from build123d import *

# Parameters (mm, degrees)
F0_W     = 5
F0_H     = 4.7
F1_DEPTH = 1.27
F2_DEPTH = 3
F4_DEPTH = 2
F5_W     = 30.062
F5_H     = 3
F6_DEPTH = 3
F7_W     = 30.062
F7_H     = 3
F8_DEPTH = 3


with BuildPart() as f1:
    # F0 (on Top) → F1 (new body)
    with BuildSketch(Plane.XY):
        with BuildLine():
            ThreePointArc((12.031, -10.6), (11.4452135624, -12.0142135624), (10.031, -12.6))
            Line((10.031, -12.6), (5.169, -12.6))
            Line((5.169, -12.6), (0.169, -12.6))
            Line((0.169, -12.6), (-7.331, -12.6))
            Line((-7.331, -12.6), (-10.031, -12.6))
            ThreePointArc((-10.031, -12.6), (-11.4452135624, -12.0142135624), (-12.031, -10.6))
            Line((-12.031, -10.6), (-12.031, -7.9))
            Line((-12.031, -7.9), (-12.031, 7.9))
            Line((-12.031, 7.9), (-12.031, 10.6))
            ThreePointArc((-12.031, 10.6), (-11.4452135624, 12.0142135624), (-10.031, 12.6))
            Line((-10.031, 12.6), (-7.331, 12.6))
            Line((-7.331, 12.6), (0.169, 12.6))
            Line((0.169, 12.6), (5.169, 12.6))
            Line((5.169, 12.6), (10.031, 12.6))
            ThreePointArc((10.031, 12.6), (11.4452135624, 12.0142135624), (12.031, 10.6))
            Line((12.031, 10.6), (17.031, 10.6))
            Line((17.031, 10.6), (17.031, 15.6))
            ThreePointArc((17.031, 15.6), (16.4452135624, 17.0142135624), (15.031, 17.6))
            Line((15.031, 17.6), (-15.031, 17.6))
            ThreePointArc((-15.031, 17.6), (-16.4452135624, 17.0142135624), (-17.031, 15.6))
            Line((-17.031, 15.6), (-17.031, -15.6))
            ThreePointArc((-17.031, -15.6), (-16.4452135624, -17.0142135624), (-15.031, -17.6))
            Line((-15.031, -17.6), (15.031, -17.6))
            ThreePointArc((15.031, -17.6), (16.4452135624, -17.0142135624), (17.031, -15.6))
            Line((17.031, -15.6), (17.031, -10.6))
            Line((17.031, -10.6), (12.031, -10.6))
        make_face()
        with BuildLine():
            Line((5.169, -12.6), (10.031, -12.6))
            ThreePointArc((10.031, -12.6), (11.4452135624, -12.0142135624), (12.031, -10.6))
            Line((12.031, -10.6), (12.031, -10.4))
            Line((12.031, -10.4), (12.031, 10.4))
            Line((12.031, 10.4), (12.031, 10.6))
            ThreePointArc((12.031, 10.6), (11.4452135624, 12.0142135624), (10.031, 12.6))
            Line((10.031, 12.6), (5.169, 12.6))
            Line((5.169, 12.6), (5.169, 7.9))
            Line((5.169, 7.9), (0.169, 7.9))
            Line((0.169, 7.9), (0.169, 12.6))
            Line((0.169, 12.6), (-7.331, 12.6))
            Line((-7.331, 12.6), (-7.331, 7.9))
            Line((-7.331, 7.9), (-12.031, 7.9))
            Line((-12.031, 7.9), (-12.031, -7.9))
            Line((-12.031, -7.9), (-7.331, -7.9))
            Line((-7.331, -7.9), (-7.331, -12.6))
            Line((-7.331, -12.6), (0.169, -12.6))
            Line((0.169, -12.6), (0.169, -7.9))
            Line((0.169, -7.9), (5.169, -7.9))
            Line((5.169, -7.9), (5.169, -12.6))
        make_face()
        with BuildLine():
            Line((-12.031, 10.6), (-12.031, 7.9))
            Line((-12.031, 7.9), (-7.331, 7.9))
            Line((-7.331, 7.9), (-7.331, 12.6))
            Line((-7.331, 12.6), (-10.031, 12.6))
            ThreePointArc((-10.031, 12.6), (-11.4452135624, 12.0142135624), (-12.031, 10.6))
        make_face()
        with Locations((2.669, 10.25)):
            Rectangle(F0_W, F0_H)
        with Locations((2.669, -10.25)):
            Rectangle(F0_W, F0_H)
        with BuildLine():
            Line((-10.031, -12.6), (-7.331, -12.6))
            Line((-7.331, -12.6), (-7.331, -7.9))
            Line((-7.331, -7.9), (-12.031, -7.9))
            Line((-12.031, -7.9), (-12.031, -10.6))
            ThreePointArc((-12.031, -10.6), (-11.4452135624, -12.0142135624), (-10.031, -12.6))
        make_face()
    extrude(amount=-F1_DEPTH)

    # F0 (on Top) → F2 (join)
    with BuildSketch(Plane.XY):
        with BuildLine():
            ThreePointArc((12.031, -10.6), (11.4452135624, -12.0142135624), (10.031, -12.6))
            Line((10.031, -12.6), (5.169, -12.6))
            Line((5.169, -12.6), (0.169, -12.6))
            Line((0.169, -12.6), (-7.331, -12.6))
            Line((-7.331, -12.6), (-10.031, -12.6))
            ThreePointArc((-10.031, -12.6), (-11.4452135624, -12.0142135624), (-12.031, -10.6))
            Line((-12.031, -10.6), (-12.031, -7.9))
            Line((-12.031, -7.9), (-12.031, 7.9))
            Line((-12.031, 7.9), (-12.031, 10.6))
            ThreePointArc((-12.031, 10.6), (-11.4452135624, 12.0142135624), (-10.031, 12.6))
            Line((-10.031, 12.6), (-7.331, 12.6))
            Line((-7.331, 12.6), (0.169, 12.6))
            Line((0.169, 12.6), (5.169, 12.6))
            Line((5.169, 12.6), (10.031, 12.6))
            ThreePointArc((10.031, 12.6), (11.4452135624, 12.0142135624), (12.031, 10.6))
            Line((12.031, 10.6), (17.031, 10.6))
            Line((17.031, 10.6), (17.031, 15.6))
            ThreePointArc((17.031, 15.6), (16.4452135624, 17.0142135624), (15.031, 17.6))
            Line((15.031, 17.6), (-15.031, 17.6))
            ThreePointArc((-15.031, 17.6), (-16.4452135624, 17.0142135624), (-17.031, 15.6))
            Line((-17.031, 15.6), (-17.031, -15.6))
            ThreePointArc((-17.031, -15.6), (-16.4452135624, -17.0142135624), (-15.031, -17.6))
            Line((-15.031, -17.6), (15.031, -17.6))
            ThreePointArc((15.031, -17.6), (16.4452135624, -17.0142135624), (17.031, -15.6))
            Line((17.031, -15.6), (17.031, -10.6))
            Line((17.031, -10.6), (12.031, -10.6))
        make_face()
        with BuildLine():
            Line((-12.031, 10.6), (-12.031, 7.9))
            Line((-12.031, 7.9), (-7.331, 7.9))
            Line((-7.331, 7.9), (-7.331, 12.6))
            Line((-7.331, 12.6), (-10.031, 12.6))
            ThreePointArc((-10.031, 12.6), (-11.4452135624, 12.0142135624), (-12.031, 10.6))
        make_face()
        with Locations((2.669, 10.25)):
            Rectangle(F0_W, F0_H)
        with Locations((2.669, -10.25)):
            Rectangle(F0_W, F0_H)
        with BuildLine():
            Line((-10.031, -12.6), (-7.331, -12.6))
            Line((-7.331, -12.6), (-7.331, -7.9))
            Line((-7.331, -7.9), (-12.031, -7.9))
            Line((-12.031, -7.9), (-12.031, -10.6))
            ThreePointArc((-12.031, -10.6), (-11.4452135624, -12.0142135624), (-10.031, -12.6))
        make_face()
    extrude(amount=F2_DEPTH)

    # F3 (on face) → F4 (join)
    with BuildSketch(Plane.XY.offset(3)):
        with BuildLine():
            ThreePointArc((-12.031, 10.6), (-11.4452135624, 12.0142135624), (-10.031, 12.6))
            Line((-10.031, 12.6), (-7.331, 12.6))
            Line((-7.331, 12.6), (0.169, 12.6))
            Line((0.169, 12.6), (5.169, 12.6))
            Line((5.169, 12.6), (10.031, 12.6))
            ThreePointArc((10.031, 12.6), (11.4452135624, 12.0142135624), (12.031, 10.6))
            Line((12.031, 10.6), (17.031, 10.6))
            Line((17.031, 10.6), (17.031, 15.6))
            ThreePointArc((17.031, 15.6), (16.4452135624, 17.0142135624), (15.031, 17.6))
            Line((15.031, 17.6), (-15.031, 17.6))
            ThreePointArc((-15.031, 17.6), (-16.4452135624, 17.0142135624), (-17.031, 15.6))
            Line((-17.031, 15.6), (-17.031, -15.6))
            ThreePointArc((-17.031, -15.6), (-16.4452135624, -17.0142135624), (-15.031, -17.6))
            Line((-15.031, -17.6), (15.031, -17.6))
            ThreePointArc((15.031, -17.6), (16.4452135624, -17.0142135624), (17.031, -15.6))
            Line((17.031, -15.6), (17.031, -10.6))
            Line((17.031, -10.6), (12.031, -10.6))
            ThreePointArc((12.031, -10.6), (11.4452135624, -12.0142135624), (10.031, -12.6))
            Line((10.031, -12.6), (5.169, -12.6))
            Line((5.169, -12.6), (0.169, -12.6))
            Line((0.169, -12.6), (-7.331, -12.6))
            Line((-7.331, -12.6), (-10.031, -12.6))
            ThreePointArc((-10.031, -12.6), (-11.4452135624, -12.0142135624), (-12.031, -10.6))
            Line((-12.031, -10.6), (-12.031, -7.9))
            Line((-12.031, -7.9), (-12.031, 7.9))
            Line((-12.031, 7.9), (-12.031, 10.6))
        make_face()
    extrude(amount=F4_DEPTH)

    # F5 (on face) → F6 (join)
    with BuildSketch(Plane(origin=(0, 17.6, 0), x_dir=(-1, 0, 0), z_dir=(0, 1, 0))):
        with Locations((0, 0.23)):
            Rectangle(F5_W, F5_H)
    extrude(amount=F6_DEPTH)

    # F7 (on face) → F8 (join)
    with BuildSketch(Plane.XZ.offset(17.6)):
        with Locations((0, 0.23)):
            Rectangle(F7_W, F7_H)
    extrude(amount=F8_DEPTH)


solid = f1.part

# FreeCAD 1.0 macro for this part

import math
import FreeCAD as App
import Part
import Sketcher
from FreeCAD import Vector

doc = App.newDocument("Part")
params = doc.addObject("Spreadsheet::Sheet", "Params")
for row, (alias, value) in enumerate([
    ("sketch1_radius", "2 mm"),
    ("sketch1_width", "5 mm"),
    ("sketch1_height", "31.2 mm"),
    ("pad1_length", "1.27 mm"),
    ("sketch2_radius", "2 mm"),
    ("sketch2_width", "5 mm"),
    ("sketch2_width2", "7.5 mm"),
    ("sketch2_width3", "4.7 mm"),
    ("sketch2_height", "15.8 mm"),
    ("pad2_length", "3 mm"),
    ("sketch3_radius", "2 mm"),
    ("sketch3_width", "5 mm"),
    ("sketch3_height", "31.2 mm"),
    ("pad3_length", "2 mm"),
    ("sketch4_height", "3 mm"),
    ("pad4_length", "3 mm"),
    ("sketch5_height", "3 mm"),
    ("pad5_length", "3 mm"),
], start=1):
    params.set(f"A{row}", alias)
    params.set(f"B{row}", "=" + value)
    params.setAlias(f"B{row}", alias)

body = doc.addObject("PartDesign::Body", "Body")

# Sketch on XY plane
sketch1 = body.newObject("Sketcher::SketchObject", "Sketch")
sketch1.AttachmentSupport = (doc.getObject("XY_Plane"), [""])
sketch1.MapMode = "FlatFace"
sketch1.addGeometry([
    Part.LineSegment(Vector(12, 10.6, 0), Vector(17, 10.6, 0)),  # 0
    Part.LineSegment(Vector(17, 10.6, 0), Vector(17, 15.6, 0)),  # 1
    Part.ArcOfCircle(Part.Circle(Vector(15, 15.6, 0), Vector(0, 0, 1), 2), math.radians(0), math.radians(90)),  # 2
    Part.LineSegment(Vector(15, 17.6, 0), Vector(-15, 17.6, 0)),  # 3
    Part.ArcOfCircle(Part.Circle(Vector(-15, 15.6, 0), Vector(0, 0, 1), 2), math.radians(90), math.radians(180)),  # 4
    Part.LineSegment(Vector(-17, 15.6, 0), Vector(-17, -15.6, 0)),  # 5
    Part.ArcOfCircle(Part.Circle(Vector(-15, -15.6, 0), Vector(0, 0, 1), 2), math.radians(180), math.radians(270)),  # 6
    Part.LineSegment(Vector(-15, -17.6, 0), Vector(15, -17.6, 0)),  # 7
    Part.ArcOfCircle(Part.Circle(Vector(15, -15.6, 0), Vector(0, 0, 1), 2), math.radians(-90), math.radians(0)),  # 8
    Part.LineSegment(Vector(17, -15.6, 0), Vector(17, -10.6, 0)),  # 9
    Part.LineSegment(Vector(17, -10.6, 0), Vector(12, -10.6, 0)),  # 10
    Part.LineSegment(Vector(12, -10.6, 0), Vector(12, 10.6, 0)),  # 11
], False)
sketch1.addConstraint([
    Sketcher.Constraint("Coincident", 0, 2, 1, 1),
    Sketcher.Constraint("Tangent", 1, 2, 2, 1),
    Sketcher.Constraint("Tangent", 2, 2, 3, 1),
    Sketcher.Constraint("Tangent", 3, 2, 4, 1),
    Sketcher.Constraint("Tangent", 4, 2, 5, 1),
    Sketcher.Constraint("Tangent", 5, 2, 6, 1),
    Sketcher.Constraint("Tangent", 6, 2, 7, 1),
    Sketcher.Constraint("Tangent", 7, 2, 8, 1),
    Sketcher.Constraint("Tangent", 8, 2, 9, 1),
    Sketcher.Constraint("Coincident", 9, 2, 10, 1),
    Sketcher.Constraint("Coincident", 10, 2, 11, 1),
    Sketcher.Constraint("Coincident", 11, 2, 0, 1),
    Sketcher.Constraint("Horizontal", 0),
    Sketcher.Constraint("Vertical", 1),
    Sketcher.Constraint("Horizontal", 3),
    Sketcher.Constraint("Vertical", 5),
    Sketcher.Constraint("Horizontal", 7),
    Sketcher.Constraint("Vertical", 9),
    Sketcher.Constraint("Horizontal", 10),
    Sketcher.Constraint("Vertical", 11),
    Sketcher.Constraint("Equal", 2, 4),
    Sketcher.Constraint("Equal", 4, 6),
    Sketcher.Constraint("Equal", 6, 8),
    Sketcher.Constraint("Symmetric", 2, 3, 6, 3, -1, 1),
    Sketcher.Constraint("Symmetric", 0, 2, 9, 2, -1),
    Sketcher.Constraint("Equal", 10, 1),
    Sketcher.Constraint("Radius", 2, 2.0),
    Sketcher.Constraint("DistanceX", 0, 1, 0, 2, 5.0),
    Sketcher.Constraint("DistanceY", 5, 2, 5, 1, 31.2),
    Sketcher.Constraint("DistanceX", 3, 2, 3, 1, 30.062),
])
sketch1.setExpression("Constraints[26]", "Params.sketch1_radius")
sketch1.setExpression("Constraints[27]", "Params.sketch1_width")
sketch1.setExpression("Constraints[28]", "Params.sketch1_height")
pad1 = body.newObject("PartDesign::Pad", "Pad")
pad1.Profile = sketch1
pad1.setExpression("Length", "Params.pad1_length")
pad1.Reversed = True

# Sketch on XY plane
sketch2 = body.newObject("Sketcher::SketchObject", "Sketch001")
sketch2.AttachmentSupport = (doc.getObject("XY_Plane"), [""])
sketch2.MapMode = "FlatFace"
sketch2.addGeometry([
    Part.ArcOfCircle(Part.Circle(Vector(10, -10.6, 0), Vector(0, 0, 1), 2), math.radians(-90), math.radians(0)),  # 0
    Part.LineSegment(Vector(10, -12.6, 0), Vector(5.2, -12.6, 0)),  # 1
    Part.LineSegment(Vector(5.2, -12.6, 0), Vector(5.2, -7.9, 0)),  # 2
    Part.LineSegment(Vector(5.2, -7.9, 0), Vector(0.2, -7.9, 0)),  # 3
    Part.LineSegment(Vector(0.2, -7.9, 0), Vector(0.2, -12.6, 0)),  # 4
    Part.LineSegment(Vector(0.2, -12.6, 0), Vector(-7.3, -12.6, 0)),  # 5
    Part.LineSegment(Vector(-7.3, -12.6, 0), Vector(-7.3, -7.9, 0)),  # 6
    Part.LineSegment(Vector(-7.3, -7.9, 0), Vector(-12, -7.9, 0)),  # 7
    Part.LineSegment(Vector(-12, -7.9, 0), Vector(-12, 7.9, 0)),  # 8
    Part.LineSegment(Vector(-12, 7.9, 0), Vector(-7.3, 7.9, 0)),  # 9
    Part.LineSegment(Vector(-7.3, 7.9, 0), Vector(-7.3, 12.6, 0)),  # 10
    Part.LineSegment(Vector(-7.3, 12.6, 0), Vector(0.2, 12.6, 0)),  # 11
    Part.LineSegment(Vector(0.2, 12.6, 0), Vector(0.2, 7.9, 0)),  # 12
    Part.LineSegment(Vector(0.2, 7.9, 0), Vector(5.2, 7.9, 0)),  # 13
    Part.LineSegment(Vector(5.2, 7.9, 0), Vector(5.2, 12.6, 0)),  # 14
    Part.LineSegment(Vector(5.2, 12.6, 0), Vector(10, 12.6, 0)),  # 15
    Part.ArcOfCircle(Part.Circle(Vector(10, 10.6, 0), Vector(0, 0, 1), 2), math.radians(0), math.radians(90)),  # 16
    Part.LineSegment(Vector(12, 10.6, 0), Vector(17, 10.6, 0)),  # 17
    Part.LineSegment(Vector(17, 10.6, 0), Vector(17, 15.6, 0)),  # 18
    Part.ArcOfCircle(Part.Circle(Vector(15, 15.6, 0), Vector(0, 0, 1), 2), math.radians(0), math.radians(90)),  # 19
    Part.LineSegment(Vector(15, 17.6, 0), Vector(-15, 17.6, 0)),  # 20
    Part.ArcOfCircle(Part.Circle(Vector(-15, 15.6, 0), Vector(0, 0, 1), 2), math.radians(90), math.radians(180)),  # 21
    Part.LineSegment(Vector(-17, 15.6, 0), Vector(-17, -15.6, 0)),  # 22
    Part.ArcOfCircle(Part.Circle(Vector(-15, -15.6, 0), Vector(0, 0, 1), 2), math.radians(180), math.radians(270)),  # 23
    Part.LineSegment(Vector(-15, -17.6, 0), Vector(15, -17.6, 0)),  # 24
    Part.ArcOfCircle(Part.Circle(Vector(15, -15.6, 0), Vector(0, 0, 1), 2), math.radians(-90), math.radians(0)),  # 25
    Part.LineSegment(Vector(17, -15.6, 0), Vector(17, -10.6, 0)),  # 26
    Part.LineSegment(Vector(17, -10.6, 0), Vector(12, -10.6, 0)),  # 27
], False)
sketch2.addConstraint([
    Sketcher.Constraint("Tangent", 0, 1, 1, 1),
    Sketcher.Constraint("Coincident", 1, 2, 2, 1),
    Sketcher.Constraint("Coincident", 2, 2, 3, 1),
    Sketcher.Constraint("Coincident", 3, 2, 4, 1),
    Sketcher.Constraint("Coincident", 4, 2, 5, 1),
    Sketcher.Constraint("Coincident", 5, 2, 6, 1),
    Sketcher.Constraint("Coincident", 6, 2, 7, 1),
    Sketcher.Constraint("Coincident", 7, 2, 8, 1),
    Sketcher.Constraint("Coincident", 8, 2, 9, 1),
    Sketcher.Constraint("Coincident", 9, 2, 10, 1),
    Sketcher.Constraint("Coincident", 10, 2, 11, 1),
    Sketcher.Constraint("Coincident", 11, 2, 12, 1),
    Sketcher.Constraint("Coincident", 12, 2, 13, 1),
    Sketcher.Constraint("Coincident", 13, 2, 14, 1),
    Sketcher.Constraint("Coincident", 14, 2, 15, 1),
    Sketcher.Constraint("Tangent", 15, 2, 16, 2),
    Sketcher.Constraint("Coincident", 16, 1, 17, 1),
    Sketcher.Constraint("Coincident", 17, 2, 18, 1),
    Sketcher.Constraint("Tangent", 18, 2, 19, 1),
    Sketcher.Constraint("Tangent", 19, 2, 20, 1),
    Sketcher.Constraint("Tangent", 20, 2, 21, 1),
    Sketcher.Constraint("Tangent", 21, 2, 22, 1),
    Sketcher.Constraint("Tangent", 22, 2, 23, 1),
    Sketcher.Constraint("Tangent", 23, 2, 24, 1),
    Sketcher.Constraint("Tangent", 24, 2, 25, 1),
    Sketcher.Constraint("Tangent", 25, 2, 26, 1),
    Sketcher.Constraint("Coincident", 26, 2, 27, 1),
    Sketcher.Constraint("Coincident", 27, 2, 0, 2),
    Sketcher.Constraint("Horizontal", 1),
    Sketcher.Constraint("Vertical", 2),
    Sketcher.Constraint("Horizontal", 3),
    Sketcher.Constraint("Vertical", 4),
    Sketcher.Constraint("Horizontal", 5),
    Sketcher.Constraint("Vertical", 6),
    Sketcher.Constraint("Horizontal", 7),
    Sketcher.Constraint("Vertical", 8),
    Sketcher.Constraint("Horizontal", 9),
    Sketcher.Constraint("Vertical", 10),
    Sketcher.Constraint("Horizontal", 11),
    Sketcher.Constraint("Vertical", 12),
    Sketcher.Constraint("Horizontal", 13),
    Sketcher.Constraint("Vertical", 14),
    Sketcher.Constraint("Horizontal", 15),
    Sketcher.Constraint("Horizontal", 17),
    Sketcher.Constraint("Vertical", 18),
    Sketcher.Constraint("Horizontal", 20),
    Sketcher.Constraint("Vertical", 22),
    Sketcher.Constraint("Horizontal", 24),
    Sketcher.Constraint("Vertical", 26),
    Sketcher.Constraint("Horizontal", 27),
    Sketcher.Constraint("Equal", 0, 16),
    Sketcher.Constraint("Equal", 16, 19),
    Sketcher.Constraint("Equal", 19, 21),
    Sketcher.Constraint("Equal", 21, 23),
    Sketcher.Constraint("Equal", 23, 25),
    Sketcher.Constraint("Symmetric", 19, 3, 23, 3, -1, 1),
    Sketcher.Constraint("Symmetric", 0, 3, 16, 3, -1),
    Sketcher.Constraint("Symmetric", 6, 2, 9, 2, -1),
    Sketcher.Constraint("Symmetric", 4, 2, 11, 2, -1),
    Sketcher.Constraint("Symmetric", 2, 2, 13, 2, -1),
    Sketcher.Constraint("Symmetric", 17, 2, 26, 2, -1),
    Sketcher.Constraint("Horizontal", 1, 2, 4, 2),
    Sketcher.Constraint("Horizontal", 3, 2, 6, 2),
    Sketcher.Constraint("Horizontal", 0, 3, 26, 2),
    Sketcher.Constraint("Equal", 13, 17),
    Sketcher.Constraint("Equal", 9, 2),
    Sketcher.Constraint("Equal", 27, 18),
    Sketcher.Constraint("Radius", 0, 2.0),
    Sketcher.Constraint("DistanceX", 3, 2, 3, 1, 5.0),
    Sketcher.Constraint("DistanceX", 5, 2, 5, 1, 7.5),
    Sketcher.Constraint("DistanceX", 7, 2, 7, 1, 4.7),
    Sketcher.Constraint("DistanceY", 8, 1, 8, 2, 15.8),
    Sketcher.Constraint("DistanceX", 23, 3, 7, 2, 3.0),
    Sketcher.Constraint("DistanceX", 1, 2, 1, 1, 4.862),
])
sketch2.setExpression("Constraints[67]", "Params.sketch2_radius")
sketch2.setExpression("Constraints[68]", "Params.sketch2_width")
sketch2.setExpression("Constraints[69]", "Params.sketch2_width2")
sketch2.setExpression("Constraints[70]", "Params.sketch2_width3")
sketch2.setExpression("Constraints[71]", "Params.sketch2_height")
pad2 = body.newObject("PartDesign::Pad", "Pad001")
pad2.Profile = sketch2
pad2.setExpression("Length", "Params.pad2_length")

# Sketch on XY plane
sketch3 = body.newObject("Sketcher::SketchObject", "Sketch002")
sketch3.AttachmentSupport = (doc.getObject("XY_Plane"), [""])
sketch3.MapMode = "FlatFace"
sketch3.AttachmentOffset = App.Placement(Vector(0, 0, 3), App.Rotation())
sketch3.addGeometry([
    Part.ArcOfCircle(Part.Circle(Vector(-10, 10.6, 0), Vector(0, 0, 1), 2), math.radians(90), math.radians(180)),  # 0
    Part.LineSegment(Vector(-10, 12.6, 0), Vector(10, 12.6, 0)),  # 1
    Part.ArcOfCircle(Part.Circle(Vector(10, 10.6, 0), Vector(0, 0, 1), 2), math.radians(0), math.radians(90)),  # 2
    Part.LineSegment(Vector(12, 10.6, 0), Vector(17, 10.6, 0)),  # 3
    Part.LineSegment(Vector(17, 10.6, 0), Vector(17, 15.6, 0)),  # 4
    Part.ArcOfCircle(Part.Circle(Vector(15, 15.6, 0), Vector(0, 0, 1), 2), math.radians(0), math.radians(90)),  # 5
    Part.LineSegment(Vector(15, 17.6, 0), Vector(-15, 17.6, 0)),  # 6
    Part.ArcOfCircle(Part.Circle(Vector(-15, 15.6, 0), Vector(0, 0, 1), 2), math.radians(90), math.radians(180)),  # 7
    Part.LineSegment(Vector(-17, 15.6, 0), Vector(-17, -15.6, 0)),  # 8
    Part.ArcOfCircle(Part.Circle(Vector(-15, -15.6, 0), Vector(0, 0, 1), 2), math.radians(180), math.radians(270)),  # 9
    Part.LineSegment(Vector(-15, -17.6, 0), Vector(15, -17.6, 0)),  # 10
    Part.ArcOfCircle(Part.Circle(Vector(15, -15.6, 0), Vector(0, 0, 1), 2), math.radians(-90), math.radians(0)),  # 11
    Part.LineSegment(Vector(17, -15.6, 0), Vector(17, -10.6, 0)),  # 12
    Part.LineSegment(Vector(17, -10.6, 0), Vector(12, -10.6, 0)),  # 13
    Part.ArcOfCircle(Part.Circle(Vector(10, -10.6, 0), Vector(0, 0, 1), 2), math.radians(-90), math.radians(0)),  # 14
    Part.LineSegment(Vector(10, -12.6, 0), Vector(-10, -12.6, 0)),  # 15
    Part.ArcOfCircle(Part.Circle(Vector(-10, -10.6, 0), Vector(0, 0, 1), 2), math.radians(180), math.radians(270)),  # 16
    Part.LineSegment(Vector(-12, -10.6, 0), Vector(-12, 10.6, 0)),  # 17
], False)
sketch3.addConstraint([
    Sketcher.Constraint("Tangent", 0, 1, 1, 1),
    Sketcher.Constraint("Tangent", 1, 2, 2, 2),
    Sketcher.Constraint("Coincident", 2, 1, 3, 1),
    Sketcher.Constraint("Coincident", 3, 2, 4, 1),
    Sketcher.Constraint("Tangent", 4, 2, 5, 1),
    Sketcher.Constraint("Tangent", 5, 2, 6, 1),
    Sketcher.Constraint("Tangent", 6, 2, 7, 1),
    Sketcher.Constraint("Tangent", 7, 2, 8, 1),
    Sketcher.Constraint("Tangent", 8, 2, 9, 1),
    Sketcher.Constraint("Tangent", 9, 2, 10, 1),
    Sketcher.Constraint("Tangent", 10, 2, 11, 1),
    Sketcher.Constraint("Tangent", 11, 2, 12, 1),
    Sketcher.Constraint("Coincident", 12, 2, 13, 1),
    Sketcher.Constraint("Coincident", 13, 2, 14, 2),
    Sketcher.Constraint("Tangent", 14, 1, 15, 1),
    Sketcher.Constraint("Tangent", 15, 2, 16, 2),
    Sketcher.Constraint("Tangent", 16, 1, 17, 1),
    Sketcher.Constraint("Tangent", 17, 2, 0, 2),
    Sketcher.Constraint("Horizontal", 1),
    Sketcher.Constraint("Horizontal", 3),
    Sketcher.Constraint("Vertical", 4),
    Sketcher.Constraint("Horizontal", 6),
    Sketcher.Constraint("Vertical", 8),
    Sketcher.Constraint("Horizontal", 10),
    Sketcher.Constraint("Vertical", 12),
    Sketcher.Constraint("Horizontal", 13),
    Sketcher.Constraint("Horizontal", 15),
    Sketcher.Constraint("Vertical", 17),
    Sketcher.Constraint("Equal", 0, 2),
    Sketcher.Constraint("Equal", 2, 5),
    Sketcher.Constraint("Equal", 5, 7),
    Sketcher.Constraint("Equal", 7, 9),
    Sketcher.Constraint("Equal", 9, 11),
    Sketcher.Constraint("Equal", 11, 14),
    Sketcher.Constraint("Equal", 14, 16),
    Sketcher.Constraint("Symmetric", 5, 3, 9, 3, -1, 1),
    Sketcher.Constraint("Symmetric", 0, 3, 14, 3, -1, 1),
    Sketcher.Constraint("Symmetric", 2, 1, 16, 1, -1, 1),
    Sketcher.Constraint("Symmetric", 3, 2, 12, 2, -1),
    Sketcher.Constraint("Equal", 13, 4),
    Sketcher.Constraint("Radius", 0, 2.0),
    Sketcher.Constraint("DistanceX", 3, 1, 3, 2, 5.0),
    Sketcher.Constraint("DistanceY", 8, 2, 8, 1, 31.2),
    Sketcher.Constraint("DistanceX", 1, 1, 1, 2, 20.062),
])
sketch3.setExpression("Constraints[40]", "Params.sketch3_radius")
sketch3.setExpression("Constraints[41]", "Params.sketch3_width")
sketch3.setExpression("Constraints[42]", "Params.sketch3_height")
pad3 = body.newObject("PartDesign::Pad", "Pad002")
pad3.Profile = sketch3
pad3.setExpression("Length", "Params.pad3_length")

# Sketch on XZ plane
sketch4 = body.newObject("Sketcher::SketchObject", "Sketch003")
sketch4.AttachmentSupport = (doc.getObject("XZ_Plane"), [""])
sketch4.MapMode = "FlatFace"
sketch4.AttachmentOffset = App.Placement(Vector(0, 0, -17.6), App.Rotation())
sketch4.addGeometry([
    Part.LineSegment(Vector(15, 1.7, 0), Vector(15, -1.3, 0)),
    Part.LineSegment(Vector(15, -1.3, 0), Vector(-15, -1.3, 0)),
    Part.LineSegment(Vector(-15, -1.3, 0), Vector(-15, 1.7, 0)),
    Part.LineSegment(Vector(-15, 1.7, 0), Vector(15, 1.7, 0)),
], False)
sketch4.addConstraint([
    Sketcher.Constraint("Coincident", 0, 2, 1, 1),
    Sketcher.Constraint("Coincident", 1, 2, 2, 1),
    Sketcher.Constraint("Coincident", 2, 2, 3, 1),
    Sketcher.Constraint("Coincident", 3, 2, 0, 1),
    Sketcher.Constraint("Vertical", 0),
    Sketcher.Constraint("Horizontal", 1),
    Sketcher.Constraint("Vertical", 2),
    Sketcher.Constraint("Horizontal", 3),
    Sketcher.Constraint("DistanceY", 0, 2, 0, 1, 3.0),
    Sketcher.Constraint("DistanceX", 1, 2, 1, 1, 30.062),
    Sketcher.Constraint("DistanceY", 0, 2, -1, 1, 1.27),
    Sketcher.Constraint("DistanceX", -1, 1, 0, 2, 15.031),
])
sketch4.setExpression("Constraints[8]", "Params.sketch4_height")
pad4 = body.newObject("PartDesign::Pad", "Pad003")
pad4.Profile = sketch4
pad4.setExpression("Length", "Params.pad4_length")
pad4.Reversed = True

# Sketch on XZ plane
sketch5 = body.newObject("Sketcher::SketchObject", "Sketch004")
sketch5.AttachmentSupport = (doc.getObject("XZ_Plane"), [""])
sketch5.MapMode = "FlatFace"
sketch5.AttachmentOffset = App.Placement(Vector(0, 0, 17.6), App.Rotation())
sketch5.addGeometry([
    Part.LineSegment(Vector(-15, 1.7, 0), Vector(-15, -1.3, 0)),
    Part.LineSegment(Vector(-15, -1.3, 0), Vector(15, -1.3, 0)),
    Part.LineSegment(Vector(15, -1.3, 0), Vector(15, 1.7, 0)),
    Part.LineSegment(Vector(15, 1.7, 0), Vector(-15, 1.7, 0)),
], False)
sketch5.addConstraint([
    Sketcher.Constraint("Coincident", 0, 2, 1, 1),
    Sketcher.Constraint("Coincident", 1, 2, 2, 1),
    Sketcher.Constraint("Coincident", 2, 2, 3, 1),
    Sketcher.Constraint("Coincident", 3, 2, 0, 1),
    Sketcher.Constraint("Vertical", 0),
    Sketcher.Constraint("Horizontal", 1),
    Sketcher.Constraint("Vertical", 2),
    Sketcher.Constraint("Horizontal", 3),
    Sketcher.Constraint("DistanceY", 0, 2, 0, 1, 3.0),
    Sketcher.Constraint("DistanceX", 1, 1, 1, 2, 30.062),
    Sketcher.Constraint("DistanceY", 0, 2, -1, 1, 1.27),
    Sketcher.Constraint("DistanceX", 0, 2, -1, 1, 15.031),
])
sketch5.setExpression("Constraints[8]", "Params.sketch5_height")
pad5 = body.newObject("PartDesign::Pad", "Pad004")
pad5.Profile = sketch5
pad5.setExpression("Length", "Params.pad5_length")

doc.recompute()
